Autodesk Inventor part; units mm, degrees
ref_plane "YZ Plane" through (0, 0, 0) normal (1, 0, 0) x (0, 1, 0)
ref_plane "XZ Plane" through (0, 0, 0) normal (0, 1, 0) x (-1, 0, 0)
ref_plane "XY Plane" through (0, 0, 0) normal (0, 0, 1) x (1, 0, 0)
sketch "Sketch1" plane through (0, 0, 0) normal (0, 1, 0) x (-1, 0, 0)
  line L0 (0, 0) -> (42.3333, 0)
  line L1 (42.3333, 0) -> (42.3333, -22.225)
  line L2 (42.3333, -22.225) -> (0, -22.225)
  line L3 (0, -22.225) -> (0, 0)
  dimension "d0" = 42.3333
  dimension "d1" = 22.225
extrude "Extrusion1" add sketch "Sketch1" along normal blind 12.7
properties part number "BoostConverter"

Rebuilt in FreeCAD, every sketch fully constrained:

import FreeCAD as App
import Part
import Sketcher
from FreeCAD import Vector
Q = App.Units.Quantity


def add_polygon(sketch, points):
    """Adds a closed chain of lines whose ends are joined by coincident constraints."""
    first, n = sketch.GeometryCount, len(points)
    for a, b in zip(points, points[1:] + points[:1]):
        sketch.addGeometry(Part.LineSegment(App.Vector(*a, 0), App.Vector(*b, 0)), False)
    for i in range(n):
        sketch.addConstraint(Sketcher.Constraint("Coincident", first + i, 2, first + (i + 1) % n, 1))

doc = App.newDocument("Part")
body = doc.addObject("PartDesign::Body", "Body")

# Sketch on XZ plane
sketch1 = body.newObject("Sketcher::SketchObject", "Sketch")
sketch1.AttachmentSupport = (doc.getObject("XZ_Plane"), [""])
sketch1.MapMode = "FlatFace"
add_polygon(sketch1, [(-42.3333, 0), (0, 0), (0, -22.225), (-42.3333, -22.225)])  # lines 0-3
sketch1.addConstraint([
    Sketcher.Constraint("Horizontal", 0),
    Sketcher.Constraint("Vertical", 1),
    Sketcher.Constraint("Horizontal", 2),
    Sketcher.Constraint("Vertical", 3),
    Sketcher.Constraint("Coincident", 0, 2, -1, 1),
    Sketcher.Constraint("DistanceY", 1, 2, 1, 1, Q("0.875 in")),
    Sketcher.Constraint("DistanceX", 0, 1, 0, 2, Q("42.3333 mm")),
])
pad1 = body.newObject("PartDesign::Pad", "Pad")
pad1.Profile = sketch1
pad1.Length = Q("0.5 in")
pad1.Reversed = True

doc.recompute()
